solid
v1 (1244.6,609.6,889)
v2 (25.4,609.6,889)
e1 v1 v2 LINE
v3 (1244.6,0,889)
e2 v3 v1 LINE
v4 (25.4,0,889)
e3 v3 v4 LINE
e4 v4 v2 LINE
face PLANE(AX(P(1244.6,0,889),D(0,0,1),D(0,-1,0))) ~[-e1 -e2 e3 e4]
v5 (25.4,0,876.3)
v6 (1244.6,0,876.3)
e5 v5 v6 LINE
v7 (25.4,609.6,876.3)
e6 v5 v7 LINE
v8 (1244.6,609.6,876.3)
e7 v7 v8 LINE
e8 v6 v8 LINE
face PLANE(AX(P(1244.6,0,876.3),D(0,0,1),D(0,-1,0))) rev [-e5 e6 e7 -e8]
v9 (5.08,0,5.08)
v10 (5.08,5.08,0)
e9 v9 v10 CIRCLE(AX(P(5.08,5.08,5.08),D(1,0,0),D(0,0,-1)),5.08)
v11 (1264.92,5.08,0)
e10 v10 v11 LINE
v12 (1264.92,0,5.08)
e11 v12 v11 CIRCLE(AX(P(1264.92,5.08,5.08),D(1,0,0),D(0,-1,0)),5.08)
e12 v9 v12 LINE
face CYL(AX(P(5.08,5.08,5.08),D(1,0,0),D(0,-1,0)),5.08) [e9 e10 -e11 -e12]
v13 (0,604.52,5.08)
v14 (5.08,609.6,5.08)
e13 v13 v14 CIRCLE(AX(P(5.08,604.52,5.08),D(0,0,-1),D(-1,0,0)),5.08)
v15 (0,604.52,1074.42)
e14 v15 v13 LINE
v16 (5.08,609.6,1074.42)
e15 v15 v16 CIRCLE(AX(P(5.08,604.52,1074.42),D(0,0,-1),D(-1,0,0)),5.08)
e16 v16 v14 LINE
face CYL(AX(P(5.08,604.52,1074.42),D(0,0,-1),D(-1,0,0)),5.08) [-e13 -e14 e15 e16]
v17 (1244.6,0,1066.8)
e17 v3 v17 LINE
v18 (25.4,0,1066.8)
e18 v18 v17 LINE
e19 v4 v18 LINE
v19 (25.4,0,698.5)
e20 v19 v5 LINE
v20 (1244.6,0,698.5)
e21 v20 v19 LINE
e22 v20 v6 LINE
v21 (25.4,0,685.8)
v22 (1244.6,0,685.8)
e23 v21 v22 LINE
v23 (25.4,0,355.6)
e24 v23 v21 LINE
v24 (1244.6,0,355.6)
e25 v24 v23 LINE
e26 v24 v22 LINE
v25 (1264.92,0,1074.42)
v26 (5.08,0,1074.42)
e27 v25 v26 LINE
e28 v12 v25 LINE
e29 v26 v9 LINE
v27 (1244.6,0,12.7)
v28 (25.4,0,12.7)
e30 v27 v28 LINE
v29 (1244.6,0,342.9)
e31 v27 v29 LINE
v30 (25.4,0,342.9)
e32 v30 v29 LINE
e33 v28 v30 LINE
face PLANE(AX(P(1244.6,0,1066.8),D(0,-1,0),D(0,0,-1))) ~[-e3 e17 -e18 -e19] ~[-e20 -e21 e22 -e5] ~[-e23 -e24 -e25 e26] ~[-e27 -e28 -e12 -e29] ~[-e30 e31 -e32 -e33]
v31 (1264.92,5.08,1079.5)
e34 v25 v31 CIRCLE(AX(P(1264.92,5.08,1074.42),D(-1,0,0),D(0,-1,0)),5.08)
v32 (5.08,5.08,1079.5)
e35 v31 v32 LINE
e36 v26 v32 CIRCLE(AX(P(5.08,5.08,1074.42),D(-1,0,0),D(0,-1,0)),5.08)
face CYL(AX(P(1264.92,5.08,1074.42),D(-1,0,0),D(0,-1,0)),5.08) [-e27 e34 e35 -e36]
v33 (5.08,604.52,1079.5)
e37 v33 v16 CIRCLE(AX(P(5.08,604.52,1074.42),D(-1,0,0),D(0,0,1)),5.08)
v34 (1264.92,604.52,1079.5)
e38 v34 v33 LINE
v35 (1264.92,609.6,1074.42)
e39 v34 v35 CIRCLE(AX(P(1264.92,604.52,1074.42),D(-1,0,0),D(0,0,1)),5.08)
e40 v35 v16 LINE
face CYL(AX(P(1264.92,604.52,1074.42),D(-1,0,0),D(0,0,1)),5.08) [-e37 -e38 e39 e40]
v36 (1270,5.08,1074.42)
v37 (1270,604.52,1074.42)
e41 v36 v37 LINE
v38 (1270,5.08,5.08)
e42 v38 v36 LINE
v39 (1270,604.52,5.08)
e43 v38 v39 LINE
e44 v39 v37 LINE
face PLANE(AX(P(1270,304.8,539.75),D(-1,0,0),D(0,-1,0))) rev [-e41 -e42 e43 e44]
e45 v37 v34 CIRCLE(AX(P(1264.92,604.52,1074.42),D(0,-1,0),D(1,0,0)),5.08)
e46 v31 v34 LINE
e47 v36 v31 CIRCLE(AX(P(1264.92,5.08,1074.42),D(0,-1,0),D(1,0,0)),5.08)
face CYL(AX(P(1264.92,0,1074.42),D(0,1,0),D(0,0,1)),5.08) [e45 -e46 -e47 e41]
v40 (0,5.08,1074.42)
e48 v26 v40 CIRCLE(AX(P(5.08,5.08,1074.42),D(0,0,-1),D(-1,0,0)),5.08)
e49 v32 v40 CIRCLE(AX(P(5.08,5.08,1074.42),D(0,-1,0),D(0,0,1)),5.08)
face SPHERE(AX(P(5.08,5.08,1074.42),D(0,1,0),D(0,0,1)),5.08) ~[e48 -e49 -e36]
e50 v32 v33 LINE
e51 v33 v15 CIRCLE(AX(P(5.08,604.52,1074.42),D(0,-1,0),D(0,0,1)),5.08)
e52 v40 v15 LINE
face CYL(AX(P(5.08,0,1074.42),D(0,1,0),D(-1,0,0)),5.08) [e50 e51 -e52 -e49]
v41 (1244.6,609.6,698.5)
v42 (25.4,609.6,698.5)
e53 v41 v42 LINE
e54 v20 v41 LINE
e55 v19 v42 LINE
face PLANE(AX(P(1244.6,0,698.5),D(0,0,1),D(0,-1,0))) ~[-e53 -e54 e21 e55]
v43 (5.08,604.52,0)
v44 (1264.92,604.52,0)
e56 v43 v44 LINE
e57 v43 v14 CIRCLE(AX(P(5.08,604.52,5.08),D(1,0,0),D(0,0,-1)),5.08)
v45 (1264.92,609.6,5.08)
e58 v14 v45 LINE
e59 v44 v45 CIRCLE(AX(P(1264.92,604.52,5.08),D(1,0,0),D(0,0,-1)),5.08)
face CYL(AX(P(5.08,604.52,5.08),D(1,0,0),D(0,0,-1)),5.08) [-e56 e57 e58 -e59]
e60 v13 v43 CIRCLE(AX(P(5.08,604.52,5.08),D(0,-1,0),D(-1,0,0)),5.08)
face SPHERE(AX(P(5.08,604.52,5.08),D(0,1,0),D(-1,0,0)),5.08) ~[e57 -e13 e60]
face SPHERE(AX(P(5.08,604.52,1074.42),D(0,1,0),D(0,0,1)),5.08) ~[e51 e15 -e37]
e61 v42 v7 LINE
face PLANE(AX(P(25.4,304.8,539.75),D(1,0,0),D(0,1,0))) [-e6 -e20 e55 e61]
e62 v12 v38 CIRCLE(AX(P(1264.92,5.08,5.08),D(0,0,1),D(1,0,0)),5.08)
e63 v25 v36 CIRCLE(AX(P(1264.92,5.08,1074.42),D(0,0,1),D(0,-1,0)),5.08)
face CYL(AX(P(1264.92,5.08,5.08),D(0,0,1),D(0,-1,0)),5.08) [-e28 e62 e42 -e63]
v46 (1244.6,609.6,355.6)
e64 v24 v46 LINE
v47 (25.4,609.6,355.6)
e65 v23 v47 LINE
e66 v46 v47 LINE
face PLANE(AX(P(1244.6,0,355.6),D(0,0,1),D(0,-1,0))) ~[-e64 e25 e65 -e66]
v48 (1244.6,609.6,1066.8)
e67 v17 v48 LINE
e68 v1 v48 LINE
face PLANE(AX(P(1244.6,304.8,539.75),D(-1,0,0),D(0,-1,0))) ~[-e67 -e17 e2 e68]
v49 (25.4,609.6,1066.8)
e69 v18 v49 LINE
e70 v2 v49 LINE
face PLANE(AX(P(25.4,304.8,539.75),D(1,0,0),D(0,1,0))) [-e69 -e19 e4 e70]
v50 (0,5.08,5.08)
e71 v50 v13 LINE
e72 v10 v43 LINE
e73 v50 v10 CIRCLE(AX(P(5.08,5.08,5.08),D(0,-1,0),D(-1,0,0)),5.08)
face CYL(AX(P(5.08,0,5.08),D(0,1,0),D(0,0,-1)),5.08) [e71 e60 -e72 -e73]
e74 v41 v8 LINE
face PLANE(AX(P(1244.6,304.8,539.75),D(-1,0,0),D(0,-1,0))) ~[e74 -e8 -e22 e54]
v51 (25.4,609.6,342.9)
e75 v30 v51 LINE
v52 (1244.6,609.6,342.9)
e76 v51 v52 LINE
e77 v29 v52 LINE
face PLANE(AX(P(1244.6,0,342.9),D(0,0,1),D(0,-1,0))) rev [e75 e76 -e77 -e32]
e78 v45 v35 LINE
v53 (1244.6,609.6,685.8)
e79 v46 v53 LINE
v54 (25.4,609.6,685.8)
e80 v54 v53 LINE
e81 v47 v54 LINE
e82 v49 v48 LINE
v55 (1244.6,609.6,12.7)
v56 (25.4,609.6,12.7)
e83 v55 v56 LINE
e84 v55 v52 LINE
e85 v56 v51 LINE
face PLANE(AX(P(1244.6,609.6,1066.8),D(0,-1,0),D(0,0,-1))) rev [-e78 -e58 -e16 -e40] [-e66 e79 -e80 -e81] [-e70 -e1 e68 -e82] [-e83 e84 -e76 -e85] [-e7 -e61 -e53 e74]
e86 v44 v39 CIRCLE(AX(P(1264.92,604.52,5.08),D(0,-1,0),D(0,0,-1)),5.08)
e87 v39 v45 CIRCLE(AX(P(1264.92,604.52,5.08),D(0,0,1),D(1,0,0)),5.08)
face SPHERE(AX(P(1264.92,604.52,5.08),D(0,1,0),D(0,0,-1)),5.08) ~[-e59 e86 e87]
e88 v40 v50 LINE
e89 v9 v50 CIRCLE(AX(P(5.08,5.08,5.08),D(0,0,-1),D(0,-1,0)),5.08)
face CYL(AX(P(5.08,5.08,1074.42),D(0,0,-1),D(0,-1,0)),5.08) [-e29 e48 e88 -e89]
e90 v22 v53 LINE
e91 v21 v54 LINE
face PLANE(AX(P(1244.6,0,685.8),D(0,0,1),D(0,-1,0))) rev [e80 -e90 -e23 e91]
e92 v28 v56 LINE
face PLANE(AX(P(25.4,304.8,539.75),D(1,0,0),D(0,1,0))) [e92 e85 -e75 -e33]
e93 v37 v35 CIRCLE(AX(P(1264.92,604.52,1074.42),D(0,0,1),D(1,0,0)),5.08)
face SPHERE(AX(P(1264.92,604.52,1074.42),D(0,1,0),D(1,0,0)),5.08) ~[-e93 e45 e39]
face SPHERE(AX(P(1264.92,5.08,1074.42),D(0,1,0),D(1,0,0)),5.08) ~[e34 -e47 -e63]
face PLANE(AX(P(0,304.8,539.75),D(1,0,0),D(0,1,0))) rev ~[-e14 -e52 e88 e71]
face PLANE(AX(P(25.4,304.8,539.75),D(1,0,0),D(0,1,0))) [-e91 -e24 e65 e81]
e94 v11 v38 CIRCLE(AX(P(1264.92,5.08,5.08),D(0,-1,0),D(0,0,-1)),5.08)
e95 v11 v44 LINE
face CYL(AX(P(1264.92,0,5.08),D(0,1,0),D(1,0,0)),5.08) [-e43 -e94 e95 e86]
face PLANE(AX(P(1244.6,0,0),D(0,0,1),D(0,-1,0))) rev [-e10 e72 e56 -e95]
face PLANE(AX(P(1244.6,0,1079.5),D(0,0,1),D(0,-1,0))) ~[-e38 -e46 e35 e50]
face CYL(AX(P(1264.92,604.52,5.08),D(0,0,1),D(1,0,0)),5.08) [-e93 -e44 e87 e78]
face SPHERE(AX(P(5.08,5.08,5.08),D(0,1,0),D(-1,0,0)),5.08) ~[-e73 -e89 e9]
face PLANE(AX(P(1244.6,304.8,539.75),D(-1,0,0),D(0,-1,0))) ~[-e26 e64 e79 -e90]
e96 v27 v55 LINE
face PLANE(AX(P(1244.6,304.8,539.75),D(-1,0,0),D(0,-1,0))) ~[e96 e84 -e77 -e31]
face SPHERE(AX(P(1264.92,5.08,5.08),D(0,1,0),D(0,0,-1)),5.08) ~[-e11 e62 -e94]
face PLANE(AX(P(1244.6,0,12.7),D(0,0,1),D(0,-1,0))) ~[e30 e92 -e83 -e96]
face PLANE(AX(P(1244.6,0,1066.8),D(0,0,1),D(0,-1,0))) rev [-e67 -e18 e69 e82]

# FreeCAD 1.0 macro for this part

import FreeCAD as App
import Part
import Sketcher
Q = App.Units.Quantity


def edges_at(feature, points):
    """Names of the edges that pass closest to the given points."""
    edges = feature.Shape.Edges
    near = lambda p: min(range(len(edges)), key=lambda i: edges[i].distToShape(Part.Vertex(*p))[0])
    return sorted({f"Edge{near(p) + 1}" for p in points})

doc = App.newDocument("Part")
body = doc.addObject("PartDesign::Body", "Body")

# Sketch on YZ plane
sketch1 = doc.addObject("Sketcher::SketchObject", "Sketch")
body.addObject(sketch1)
sketch1.AttachmentSupport = (doc.YZ_Plane, [""])
sketch1.MapMode = "FlatFace"
sketch1.addGeometry(Part.LineSegment(App.Vector(0, 1080, 0), App.Vector(0, 0, 0)), False)
sketch1.addGeometry(Part.LineSegment(App.Vector(0, 0, 0), App.Vector(610, 0, 0)), False)
sketch1.addGeometry(Part.LineSegment(App.Vector(610, 0, 0), App.Vector(610, 1080, 0)), False)
sketch1.addGeometry(Part.LineSegment(App.Vector(610, 1080, 0), App.Vector(0, 1080, 0)), False)
sketch1.addConstraint(Sketcher.Constraint("Coincident", 0, 2, 1, 1))
sketch1.addConstraint(Sketcher.Constraint("Coincident", 1, 2, 2, 1))
sketch1.addConstraint(Sketcher.Constraint("Coincident", 2, 2, 3, 1))
sketch1.addConstraint(Sketcher.Constraint("Coincident", 3, 2, 0, 1))
sketch1.addConstraint(Sketcher.Constraint("Vertical", 0))
sketch1.addConstraint(Sketcher.Constraint("Horizontal", 1))
sketch1.addConstraint(Sketcher.Constraint("Vertical", 2))
sketch1.addConstraint(Sketcher.Constraint("Horizontal", 3))
sketch1.addConstraint(Sketcher.Constraint("Coincident", 0, 2, -1, 1))
sketch1.addConstraint(Sketcher.Constraint("DistanceX", 1, 1, 1, 2, Q("24 in")))
sketch1.addConstraint(Sketcher.Constraint("DistanceY", 0, 2, 0, 1, Q("42.5 in")))
pad1 = doc.addObject("PartDesign::Pad", "Pad")
body.addObject(pad1)
pad1.Profile = sketch1
pad1.Length = Q("1 in")

# Sketch on YZ plane
sketch2 = doc.addObject("Sketcher::SketchObject", "Sketch001")
body.addObject(sketch2)
sketch2.AttachmentSupport = (doc.YZ_Plane, [""])
sketch2.MapMode = "FlatFace"
sketch2.AttachmentOffset = App.Placement(App.Vector(0, 0, 1 * 25.4), App.Rotation())
sketch2.addGeometry(Part.LineSegment(App.Vector(0, 13, 0), App.Vector(0, 0, 0)), False)
sketch2.addGeometry(Part.LineSegment(App.Vector(0, 0, 0), App.Vector(610, 0, 0)), False)
sketch2.addGeometry(Part.LineSegment(App.Vector(610, 0, 0), App.Vector(610, 13, 0)), False)
sketch2.addGeometry(Part.LineSegment(App.Vector(610, 13, 0), App.Vector(0, 13, 0)), False)
sketch2.addConstraint(Sketcher.Constraint("Coincident", 0, 2, 1, 1))
sketch2.addConstraint(Sketcher.Constraint("Coincident", 1, 2, 2, 1))
sketch2.addConstraint(Sketcher.Constraint("Coincident", 2, 2, 3, 1))
sketch2.addConstraint(Sketcher.Constraint("Coincident", 3, 2, 0, 1))
sketch2.addConstraint(Sketcher.Constraint("Vertical", 0))
sketch2.addConstraint(Sketcher.Constraint("Horizontal", 1))
sketch2.addConstraint(Sketcher.Constraint("Vertical", 2))
sketch2.addConstraint(Sketcher.Constraint("Horizontal", 3))
sketch2.addConstraint(Sketcher.Constraint("Coincident", 0, 2, -1, 1))
sketch2.addConstraint(Sketcher.Constraint("DistanceX", 1, 1, 1, 2, Q("24 in")))
sketch2.addConstraint(Sketcher.Constraint("DistanceY", 0, 2, 0, 1, Q("0.5 in")))
pad2 = doc.addObject("PartDesign::Pad", "Pad001")
body.addObject(pad2)
pad2.Profile = sketch2
pad2.Length = Q("24 in")

# Sketch on YZ plane
sketch3 = doc.addObject("Sketcher::SketchObject", "Sketch002")
body.addObject(sketch3)
sketch3.AttachmentSupport = (doc.YZ_Plane, [""])
sketch3.MapMode = "FlatFace"
sketch3.AttachmentOffset = App.Placement(App.Vector(0, 0, 1 * 25.4), App.Rotation())
sketch3.addGeometry(Part.LineSegment(App.Vector(0, 356, 0), App.Vector(0, 343, 0)), False)
sketch3.addGeometry(Part.LineSegment(App.Vector(0, 343, 0), App.Vector(610, 343, 0)), False)
sketch3.addGeometry(Part.LineSegment(App.Vector(610, 343, 0), App.Vector(610, 356, 0)), False)
sketch3.addGeometry(Part.LineSegment(App.Vector(610, 356, 0), App.Vector(0, 356, 0)), False)
sketch3.addConstraint(Sketcher.Constraint("Coincident", 0, 2, 1, 1))
sketch3.addConstraint(Sketcher.Constraint("Coincident", 1, 2, 2, 1))
sketch3.addConstraint(Sketcher.Constraint("Coincident", 2, 2, 3, 1))
sketch3.addConstraint(Sketcher.Constraint("Coincident", 3, 2, 0, 1))
sketch3.addConstraint(Sketcher.Constraint("Vertical", 0))
sketch3.addConstraint(Sketcher.Constraint("Horizontal", 1))
sketch3.addConstraint(Sketcher.Constraint("Vertical", 2))
sketch3.addConstraint(Sketcher.Constraint("Horizontal", 3))
sketch3.addConstraint(Sketcher.Constraint("PointOnObject", 0, 2, -2))
sketch3.addConstraint(Sketcher.Constraint("DistanceX", 1, 1, 1, 2, Q("24 in")))
sketch3.addConstraint(Sketcher.Constraint("DistanceY", 0, 2, 0, 1, Q("0.5 in")))
sketch3.addConstraint(Sketcher.Constraint("DistanceY", -1, 1, 2, 2, Q("14 in")))
pad3 = doc.addObject("PartDesign::Pad", "Pad002")
body.addObject(pad3)
pad3.Profile = sketch3
pad3.Length = Q("24 in")

# Sketch on YZ plane
sketch4 = doc.addObject("Sketcher::SketchObject", "Sketch003")
body.addObject(sketch4)
sketch4.AttachmentSupport = (doc.YZ_Plane, [""])
sketch4.MapMode = "FlatFace"
sketch4.AttachmentOffset = App.Placement(App.Vector(0, 0, 1 * 25.4), App.Rotation())
sketch4.addGeometry(Part.LineSegment(App.Vector(0, 698, 0), App.Vector(0, 686, 0)), False)
sketch4.addGeometry(Part.LineSegment(App.Vector(0, 686, 0), App.Vector(610, 686, 0)), False)
sketch4.addGeometry(Part.LineSegment(App.Vector(610, 686, 0), App.Vector(610, 698, 0)), False)
sketch4.addGeometry(Part.LineSegment(App.Vector(610, 698, 0), App.Vector(0, 698, 0)), False)
sketch4.addConstraint(Sketcher.Constraint("Coincident", 0, 2, 1, 1))
sketch4.addConstraint(Sketcher.Constraint("Coincident", 1, 2, 2, 1))
sketch4.addConstraint(Sketcher.Constraint("Coincident", 2, 2, 3, 1))
sketch4.addConstraint(Sketcher.Constraint("Coincident", 3, 2, 0, 1))
sketch4.addConstraint(Sketcher.Constraint("Vertical", 0))
sketch4.addConstraint(Sketcher.Constraint("Horizontal", 1))
sketch4.addConstraint(Sketcher.Constraint("Vertical", 2))
sketch4.addConstraint(Sketcher.Constraint("Horizontal", 3))
sketch4.addConstraint(Sketcher.Constraint("PointOnObject", 0, 2, -2))
sketch4.addConstraint(Sketcher.Constraint("DistanceX", 1, 1, 1, 2, Q("24 in")))
sketch4.addConstraint(Sketcher.Constraint("DistanceY", 0, 2, 0, 1, Q("0.5 in")))
sketch4.addConstraint(Sketcher.Constraint("DistanceY", -1, 1, 0, 2, Q("27 in")))
pad4 = doc.addObject("PartDesign::Pad", "Pad003")
body.addObject(pad4)
pad4.Profile = sketch4
pad4.Length = Q("24 in")

# Sketch on YZ plane
sketch5 = doc.addObject("Sketcher::SketchObject", "Sketch004")
body.addObject(sketch5)
sketch5.AttachmentSupport = (doc.YZ_Plane, [""])
sketch5.MapMode = "FlatFace"
sketch5.AttachmentOffset = App.Placement(App.Vector(0, 0, 1 * 25.4), App.Rotation())
sketch5.addGeometry(Part.LineSegment(App.Vector(0, 889, 0), App.Vector(0, 876, 0)), False)
sketch5.addGeometry(Part.LineSegment(App.Vector(0, 876, 0), App.Vector(610, 876, 0)), False)
sketch5.addGeometry(Part.LineSegment(App.Vector(610, 876, 0), App.Vector(610, 889, 0)), False)
sketch5.addGeometry(Part.LineSegment(App.Vector(610, 889, 0), App.Vector(0, 889, 0)), False)
sketch5.addConstraint(Sketcher.Constraint("Coincident", 0, 2, 1, 1))
sketch5.addConstraint(Sketcher.Constraint("Coincident", 1, 2, 2, 1))
sketch5.addConstraint(Sketcher.Constraint("Coincident", 2, 2, 3, 1))
sketch5.addConstraint(Sketcher.Constraint("Coincident", 3, 2, 0, 1))
sketch5.addConstraint(Sketcher.Constraint("Vertical", 0))
sketch5.addConstraint(Sketcher.Constraint("Horizontal", 1))
sketch5.addConstraint(Sketcher.Constraint("Vertical", 2))
sketch5.addConstraint(Sketcher.Constraint("Horizontal", 3))
sketch5.addConstraint(Sketcher.Constraint("PointOnObject", 0, 2, -2))
sketch5.addConstraint(Sketcher.Constraint("DistanceX", 1, 1, 1, 2, Q("24 in")))
sketch5.addConstraint(Sketcher.Constraint("DistanceY", 0, 2, 0, 1, Q("0.5 in")))
sketch5.addConstraint(Sketcher.Constraint("DistanceY", -1, 1, 2, 2, Q("35 in")))
pad5 = doc.addObject("PartDesign::Pad", "Pad004")
body.addObject(pad5)
pad5.Profile = sketch5
pad5.Length = Q("24 in")

# Sketch on YZ plane
sketch6 = doc.addObject("Sketcher::SketchObject", "Sketch005")
body.addObject(sketch6)
sketch6.AttachmentSupport = (doc.YZ_Plane, [""])
sketch6.MapMode = "FlatFace"
sketch6.AttachmentOffset = App.Placement(App.Vector(0, 0, 1 * 25.4), App.Rotation())
sketch6.addGeometry(Part.LineSegment(App.Vector(0, 1080, 0), App.Vector(0, 1067, 0)), False)
sketch6.addGeometry(Part.LineSegment(App.Vector(0, 1067, 0), App.Vector(610, 1067, 0)), False)
sketch6.addGeometry(Part.LineSegment(App.Vector(610, 1067, 0), App.Vector(610, 1080, 0)), False)
sketch6.addGeometry(Part.LineSegment(App.Vector(610, 1080, 0), App.Vector(0, 1080, 0)), False)
sketch6.addConstraint(Sketcher.Constraint("Coincident", 0, 2, 1, 1))
sketch6.addConstraint(Sketcher.Constraint("Coincident", 1, 2, 2, 1))
sketch6.addConstraint(Sketcher.Constraint("Coincident", 2, 2, 3, 1))
sketch6.addConstraint(Sketcher.Constraint("Coincident", 3, 2, 0, 1))
sketch6.addConstraint(Sketcher.Constraint("Vertical", 0))
sketch6.addConstraint(Sketcher.Constraint("Horizontal", 1))
sketch6.addConstraint(Sketcher.Constraint("Vertical", 2))
sketch6.addConstraint(Sketcher.Constraint("Horizontal", 3))
sketch6.addConstraint(Sketcher.Constraint("PointOnObject", 0, 2, -2))
sketch6.addConstraint(Sketcher.Constraint("DistanceX", 1, 1, 1, 2, Q("24 in")))
sketch6.addConstraint(Sketcher.Constraint("DistanceY", 0, 2, 0, 1, Q("0.5 in")))
sketch6.addConstraint(Sketcher.Constraint("DistanceY", -1, 1, 0, 2, Q("42 in")))
pad6 = doc.addObject("PartDesign::Pad", "Pad005")
body.addObject(pad6)
pad6.Profile = sketch6
pad6.Length = Q("24 in")
body2 = doc.addObject("PartDesign::Body", "Body001")
doc.recompute()

body2.BaseFeature = body
doc.recompute()

mirroring = doc.addObject("Part::Mirroring", "Mirroring")
mirroring.Source = body
mirroring.Base = App.Vector(635, 304.8, 6.35)
mirroring.Normal = App.Vector(1, 0, 0)
body3 = doc.addObject("PartDesign::Body", "Body002")
body3.BaseFeature = mirroring
boolean = doc.addObject("PartDesign::Boolean", "Boolean")
body2.addObject(boolean)
boolean.Type = "Fuse"
boolean.addObjects([body3])
doc.recompute()

fillet = doc.addObject("PartDesign::Fillet", "Fillet")
body2.addObject(fillet)
fillet.Base = (boolean, edges_at(boolean, [(0, 304.8, 1079.5)]))
fillet.Radius = Q("0.2 in")
doc.recompute()

fillet2 = doc.addObject("PartDesign::Fillet", "Fillet001")
body2.addObject(fillet2)
fillet2.Base = (fillet, edges_at(fillet, [(1270, 304.8, 1079.5)]))
fillet2.Radius = Q("0.2 in")
doc.recompute()

fillet3 = doc.addObject("PartDesign::Fillet", "Fillet002")
body2.addObject(fillet3)
fillet3.Base = (fillet2, edges_at(fillet2, [(1270, 304.8, 0)]))
fillet3.Radius = Q("0.2 in")
doc.recompute()

fillet4 = doc.addObject("PartDesign::Fillet", "Fillet003")
body2.addObject(fillet4)
fillet4.Base = (fillet3, edges_at(fillet3, [(0, 304.8, 0)]))
fillet4.Radius = Q("0.2 in")
doc.recompute()

fillet5 = doc.addObject("PartDesign::Fillet", "Fillet004")
body2.addObject(fillet5)
fillet5.Base = (fillet4, edges_at(fillet4, [(635, 0, 1079.5)]))
fillet5.Radius = Q("0.2 in")
doc.recompute()

fillet6 = doc.addObject("PartDesign::Fillet", "Fillet005")
body2.addObject(fillet6)
fillet6.Base = (fillet5, edges_at(fillet5, [(635, 609.6, 1079.5)]))
fillet6.Radius = Q("0.2 in")
mirroring.Visibility = False

doc.recompute()
